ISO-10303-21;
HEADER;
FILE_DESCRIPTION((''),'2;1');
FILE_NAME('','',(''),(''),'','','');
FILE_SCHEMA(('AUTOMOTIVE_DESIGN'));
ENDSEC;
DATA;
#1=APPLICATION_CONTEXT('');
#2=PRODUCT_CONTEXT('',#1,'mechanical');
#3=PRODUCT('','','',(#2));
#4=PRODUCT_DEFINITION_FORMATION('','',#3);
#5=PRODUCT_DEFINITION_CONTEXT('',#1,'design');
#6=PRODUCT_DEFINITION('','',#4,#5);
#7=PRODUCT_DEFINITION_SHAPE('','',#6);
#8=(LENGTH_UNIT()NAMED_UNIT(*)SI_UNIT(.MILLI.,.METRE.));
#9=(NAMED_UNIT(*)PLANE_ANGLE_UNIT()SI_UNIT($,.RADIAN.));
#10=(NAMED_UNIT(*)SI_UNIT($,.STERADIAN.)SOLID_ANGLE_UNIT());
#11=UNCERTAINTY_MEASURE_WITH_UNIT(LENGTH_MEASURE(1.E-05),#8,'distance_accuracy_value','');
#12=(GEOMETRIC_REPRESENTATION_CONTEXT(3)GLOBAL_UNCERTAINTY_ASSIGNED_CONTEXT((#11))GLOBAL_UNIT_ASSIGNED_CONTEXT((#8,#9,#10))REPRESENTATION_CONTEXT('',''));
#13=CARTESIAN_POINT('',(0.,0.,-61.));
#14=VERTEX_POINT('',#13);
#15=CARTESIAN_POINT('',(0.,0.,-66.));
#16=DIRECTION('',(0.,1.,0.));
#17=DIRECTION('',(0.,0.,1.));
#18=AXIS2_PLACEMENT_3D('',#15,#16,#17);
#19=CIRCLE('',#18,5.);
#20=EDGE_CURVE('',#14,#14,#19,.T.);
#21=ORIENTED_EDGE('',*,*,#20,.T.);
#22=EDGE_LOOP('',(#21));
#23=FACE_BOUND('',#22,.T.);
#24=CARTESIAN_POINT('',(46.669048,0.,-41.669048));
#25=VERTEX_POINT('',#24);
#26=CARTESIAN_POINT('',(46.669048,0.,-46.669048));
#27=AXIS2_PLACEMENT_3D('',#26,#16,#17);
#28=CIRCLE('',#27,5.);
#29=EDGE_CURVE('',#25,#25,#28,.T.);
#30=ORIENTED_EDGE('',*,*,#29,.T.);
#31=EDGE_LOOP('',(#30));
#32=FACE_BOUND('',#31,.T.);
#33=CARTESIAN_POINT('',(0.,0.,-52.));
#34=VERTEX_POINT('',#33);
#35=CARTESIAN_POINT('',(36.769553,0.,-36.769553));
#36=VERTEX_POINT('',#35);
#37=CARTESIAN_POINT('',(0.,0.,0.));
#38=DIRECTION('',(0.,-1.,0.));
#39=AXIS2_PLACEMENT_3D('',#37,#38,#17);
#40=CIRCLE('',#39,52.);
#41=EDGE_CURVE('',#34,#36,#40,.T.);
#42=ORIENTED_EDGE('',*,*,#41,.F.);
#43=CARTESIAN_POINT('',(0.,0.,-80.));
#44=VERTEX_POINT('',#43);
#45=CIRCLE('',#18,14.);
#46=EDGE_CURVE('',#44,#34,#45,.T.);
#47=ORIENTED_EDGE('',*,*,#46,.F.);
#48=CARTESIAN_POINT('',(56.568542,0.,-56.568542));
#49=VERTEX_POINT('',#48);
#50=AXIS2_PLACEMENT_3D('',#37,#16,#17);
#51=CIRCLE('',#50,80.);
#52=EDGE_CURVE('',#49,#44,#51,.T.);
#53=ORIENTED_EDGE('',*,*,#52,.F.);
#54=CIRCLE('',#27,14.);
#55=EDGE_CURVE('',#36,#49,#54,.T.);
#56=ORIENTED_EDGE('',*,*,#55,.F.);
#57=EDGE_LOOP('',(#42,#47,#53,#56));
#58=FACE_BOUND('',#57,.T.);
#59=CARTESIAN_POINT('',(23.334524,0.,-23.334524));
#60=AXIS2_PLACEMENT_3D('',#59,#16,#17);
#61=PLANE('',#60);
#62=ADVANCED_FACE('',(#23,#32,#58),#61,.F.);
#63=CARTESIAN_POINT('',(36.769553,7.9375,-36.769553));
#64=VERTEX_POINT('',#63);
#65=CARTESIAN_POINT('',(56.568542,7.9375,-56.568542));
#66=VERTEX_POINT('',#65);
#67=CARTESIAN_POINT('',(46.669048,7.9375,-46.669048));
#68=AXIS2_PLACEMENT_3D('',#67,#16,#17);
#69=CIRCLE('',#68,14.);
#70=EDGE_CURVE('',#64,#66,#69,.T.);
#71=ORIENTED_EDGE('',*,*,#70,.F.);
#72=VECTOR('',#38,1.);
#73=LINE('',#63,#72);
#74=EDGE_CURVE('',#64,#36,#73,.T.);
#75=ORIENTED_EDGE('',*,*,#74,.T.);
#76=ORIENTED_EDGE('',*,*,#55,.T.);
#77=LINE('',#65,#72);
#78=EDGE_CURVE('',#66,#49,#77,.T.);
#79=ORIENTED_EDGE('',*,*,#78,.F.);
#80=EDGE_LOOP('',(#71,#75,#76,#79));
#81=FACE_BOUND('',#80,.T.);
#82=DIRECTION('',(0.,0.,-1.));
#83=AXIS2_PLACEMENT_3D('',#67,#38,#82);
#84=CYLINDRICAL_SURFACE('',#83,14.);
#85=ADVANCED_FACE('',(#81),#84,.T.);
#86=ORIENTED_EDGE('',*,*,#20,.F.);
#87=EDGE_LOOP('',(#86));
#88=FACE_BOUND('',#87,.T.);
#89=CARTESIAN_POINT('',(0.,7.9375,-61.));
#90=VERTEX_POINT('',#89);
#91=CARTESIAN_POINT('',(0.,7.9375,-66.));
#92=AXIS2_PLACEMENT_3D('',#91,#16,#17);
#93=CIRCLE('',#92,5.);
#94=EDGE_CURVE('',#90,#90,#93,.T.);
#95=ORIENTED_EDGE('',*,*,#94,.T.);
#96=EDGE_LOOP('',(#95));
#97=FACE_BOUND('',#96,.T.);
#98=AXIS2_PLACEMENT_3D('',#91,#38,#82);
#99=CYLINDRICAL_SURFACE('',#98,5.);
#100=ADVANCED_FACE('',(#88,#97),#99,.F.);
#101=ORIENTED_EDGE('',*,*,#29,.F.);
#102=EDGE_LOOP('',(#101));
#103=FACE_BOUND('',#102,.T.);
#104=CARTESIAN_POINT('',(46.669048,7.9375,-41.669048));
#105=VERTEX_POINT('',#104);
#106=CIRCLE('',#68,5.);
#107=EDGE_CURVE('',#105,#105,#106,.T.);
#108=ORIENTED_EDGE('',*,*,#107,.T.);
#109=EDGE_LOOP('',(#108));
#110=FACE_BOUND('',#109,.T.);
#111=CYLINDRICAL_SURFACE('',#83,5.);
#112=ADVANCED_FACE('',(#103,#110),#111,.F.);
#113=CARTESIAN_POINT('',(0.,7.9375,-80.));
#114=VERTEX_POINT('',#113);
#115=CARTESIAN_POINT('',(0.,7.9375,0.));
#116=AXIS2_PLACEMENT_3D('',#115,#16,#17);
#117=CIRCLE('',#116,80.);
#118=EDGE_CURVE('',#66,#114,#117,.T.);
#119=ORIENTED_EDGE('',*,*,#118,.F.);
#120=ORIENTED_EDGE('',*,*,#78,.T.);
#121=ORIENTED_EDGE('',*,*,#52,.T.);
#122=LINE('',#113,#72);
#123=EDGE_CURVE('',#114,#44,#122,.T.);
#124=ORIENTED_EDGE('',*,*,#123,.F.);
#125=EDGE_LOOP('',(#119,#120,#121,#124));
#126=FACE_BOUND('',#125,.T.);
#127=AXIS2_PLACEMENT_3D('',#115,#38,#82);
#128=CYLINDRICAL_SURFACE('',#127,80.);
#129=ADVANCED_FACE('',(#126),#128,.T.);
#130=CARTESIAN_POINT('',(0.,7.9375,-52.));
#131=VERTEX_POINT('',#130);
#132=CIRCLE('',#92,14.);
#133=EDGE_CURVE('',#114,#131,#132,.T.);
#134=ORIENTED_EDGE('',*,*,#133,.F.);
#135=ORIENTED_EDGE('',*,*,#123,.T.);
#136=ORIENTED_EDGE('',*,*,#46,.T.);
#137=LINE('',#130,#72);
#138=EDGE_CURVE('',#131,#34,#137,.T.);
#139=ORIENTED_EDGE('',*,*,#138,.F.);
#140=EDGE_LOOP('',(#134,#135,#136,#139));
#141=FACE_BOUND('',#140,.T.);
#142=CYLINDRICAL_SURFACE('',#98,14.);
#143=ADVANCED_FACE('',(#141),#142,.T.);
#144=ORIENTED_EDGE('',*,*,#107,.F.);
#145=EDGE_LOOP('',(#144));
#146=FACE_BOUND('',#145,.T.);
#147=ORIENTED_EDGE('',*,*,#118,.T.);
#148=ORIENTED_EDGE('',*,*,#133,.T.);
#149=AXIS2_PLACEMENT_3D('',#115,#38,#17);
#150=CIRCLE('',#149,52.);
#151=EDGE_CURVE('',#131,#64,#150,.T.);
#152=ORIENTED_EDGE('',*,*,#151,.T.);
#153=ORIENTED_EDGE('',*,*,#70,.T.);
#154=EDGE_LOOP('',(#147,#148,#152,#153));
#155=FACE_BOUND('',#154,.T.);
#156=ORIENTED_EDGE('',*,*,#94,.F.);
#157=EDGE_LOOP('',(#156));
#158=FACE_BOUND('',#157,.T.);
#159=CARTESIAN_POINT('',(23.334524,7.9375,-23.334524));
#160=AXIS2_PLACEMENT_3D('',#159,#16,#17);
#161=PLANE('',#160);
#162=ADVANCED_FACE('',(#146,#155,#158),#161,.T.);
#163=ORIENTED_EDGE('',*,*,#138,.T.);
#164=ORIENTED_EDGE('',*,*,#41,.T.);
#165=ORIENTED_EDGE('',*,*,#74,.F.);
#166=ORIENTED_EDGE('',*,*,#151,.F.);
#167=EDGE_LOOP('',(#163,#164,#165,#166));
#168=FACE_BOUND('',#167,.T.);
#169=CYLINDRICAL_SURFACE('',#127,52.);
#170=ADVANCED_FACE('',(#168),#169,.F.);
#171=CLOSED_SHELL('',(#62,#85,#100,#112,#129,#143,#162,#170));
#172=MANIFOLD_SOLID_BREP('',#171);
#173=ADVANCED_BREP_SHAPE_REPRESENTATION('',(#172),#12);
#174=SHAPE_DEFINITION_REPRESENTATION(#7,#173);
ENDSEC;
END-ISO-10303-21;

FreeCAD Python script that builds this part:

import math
import FreeCAD as App
import Part
import Sketcher

doc = App.newDocument("Part")
body = doc.addObject("PartDesign::Body", "Body")

# Sketch on XZ plane
sketch1 = body.newObject("Sketcher::SketchObject", "Sketch")
sketch1.AttachmentSupport = (doc.getObject("XZ_Plane"), [""])
sketch1.MapMode = "FlatFace"
sketch1.addGeometry(Part.ArcOfCircle(Part.Circle(App.Vector(0, 0, 0), App.Vector(0, 0, 1), 80), math.radians(-90), math.radians(-45)), False)
sketch1.addGeometry(Part.ArcOfCircle(Part.Circle(App.Vector(0, -66, 0), App.Vector(0, 0, 1), 14), math.radians(90), math.radians(270)), False)
sketch1.addGeometry(Part.ArcOfCircle(Part.Circle(App.Vector(0, 0, 0), App.Vector(0, 0, 1), 52), math.radians(-90), math.radians(-45)), False)
sketch1.addGeometry(Part.ArcOfCircle(Part.Circle(App.Vector(47, -47, 0), App.Vector(0, 0, 1), 14), math.radians(-45), math.radians(135)), False)
sketch1.addGeometry(Part.Circle(App.Vector(47, -47, 0), App.Vector(0, 0, 1), 5), False)
sketch1.addGeometry(Part.Circle(App.Vector(0, -66, 0), App.Vector(0, 0, 1), 5), False)
sketch1.addConstraint(Sketcher.Constraint("Tangent", 0, 1, 1, 2))
sketch1.addConstraint(Sketcher.Constraint("Tangent", 1, 1, 2, 1))
sketch1.addConstraint(Sketcher.Constraint("Tangent", 2, 2, 3, 2))
sketch1.addConstraint(Sketcher.Constraint("Tangent", 3, 1, 0, 2))
sketch1.addConstraint(Sketcher.Constraint("Coincident", 0, 3, -1, 1))
sketch1.addConstraint(Sketcher.Constraint("Coincident", 2, 3, -1, 1))
sketch1.addConstraint(Sketcher.Constraint("Coincident", 4, 3, 3, 3))
sketch1.addConstraint(Sketcher.Constraint("Coincident", 5, 3, 1, 3))
sketch1.addConstraint(Sketcher.Constraint("Equal", 4, 5))
sketch1.addConstraint(Sketcher.Constraint("PointOnObject", 1, 3, -2))
sketch1.addConstraint(Sketcher.Constraint("Diameter", 4, 10.0))
sketch1.addConstraint(Sketcher.Constraint("Radius", 0, 80.0))
sketch1.addConstraint(Sketcher.Constraint("Radius", 1, 14.0))
sketch1.addConstraint(Sketcher.Constraint("DistanceX", 2, 2, 3, 1, 19.79899))
pad1 = body.newObject("PartDesign::Pad", "Pad")
pad1.Profile = sketch1
pad1.Length = 7.9375
pad1.Reversed = True

doc.recompute()
